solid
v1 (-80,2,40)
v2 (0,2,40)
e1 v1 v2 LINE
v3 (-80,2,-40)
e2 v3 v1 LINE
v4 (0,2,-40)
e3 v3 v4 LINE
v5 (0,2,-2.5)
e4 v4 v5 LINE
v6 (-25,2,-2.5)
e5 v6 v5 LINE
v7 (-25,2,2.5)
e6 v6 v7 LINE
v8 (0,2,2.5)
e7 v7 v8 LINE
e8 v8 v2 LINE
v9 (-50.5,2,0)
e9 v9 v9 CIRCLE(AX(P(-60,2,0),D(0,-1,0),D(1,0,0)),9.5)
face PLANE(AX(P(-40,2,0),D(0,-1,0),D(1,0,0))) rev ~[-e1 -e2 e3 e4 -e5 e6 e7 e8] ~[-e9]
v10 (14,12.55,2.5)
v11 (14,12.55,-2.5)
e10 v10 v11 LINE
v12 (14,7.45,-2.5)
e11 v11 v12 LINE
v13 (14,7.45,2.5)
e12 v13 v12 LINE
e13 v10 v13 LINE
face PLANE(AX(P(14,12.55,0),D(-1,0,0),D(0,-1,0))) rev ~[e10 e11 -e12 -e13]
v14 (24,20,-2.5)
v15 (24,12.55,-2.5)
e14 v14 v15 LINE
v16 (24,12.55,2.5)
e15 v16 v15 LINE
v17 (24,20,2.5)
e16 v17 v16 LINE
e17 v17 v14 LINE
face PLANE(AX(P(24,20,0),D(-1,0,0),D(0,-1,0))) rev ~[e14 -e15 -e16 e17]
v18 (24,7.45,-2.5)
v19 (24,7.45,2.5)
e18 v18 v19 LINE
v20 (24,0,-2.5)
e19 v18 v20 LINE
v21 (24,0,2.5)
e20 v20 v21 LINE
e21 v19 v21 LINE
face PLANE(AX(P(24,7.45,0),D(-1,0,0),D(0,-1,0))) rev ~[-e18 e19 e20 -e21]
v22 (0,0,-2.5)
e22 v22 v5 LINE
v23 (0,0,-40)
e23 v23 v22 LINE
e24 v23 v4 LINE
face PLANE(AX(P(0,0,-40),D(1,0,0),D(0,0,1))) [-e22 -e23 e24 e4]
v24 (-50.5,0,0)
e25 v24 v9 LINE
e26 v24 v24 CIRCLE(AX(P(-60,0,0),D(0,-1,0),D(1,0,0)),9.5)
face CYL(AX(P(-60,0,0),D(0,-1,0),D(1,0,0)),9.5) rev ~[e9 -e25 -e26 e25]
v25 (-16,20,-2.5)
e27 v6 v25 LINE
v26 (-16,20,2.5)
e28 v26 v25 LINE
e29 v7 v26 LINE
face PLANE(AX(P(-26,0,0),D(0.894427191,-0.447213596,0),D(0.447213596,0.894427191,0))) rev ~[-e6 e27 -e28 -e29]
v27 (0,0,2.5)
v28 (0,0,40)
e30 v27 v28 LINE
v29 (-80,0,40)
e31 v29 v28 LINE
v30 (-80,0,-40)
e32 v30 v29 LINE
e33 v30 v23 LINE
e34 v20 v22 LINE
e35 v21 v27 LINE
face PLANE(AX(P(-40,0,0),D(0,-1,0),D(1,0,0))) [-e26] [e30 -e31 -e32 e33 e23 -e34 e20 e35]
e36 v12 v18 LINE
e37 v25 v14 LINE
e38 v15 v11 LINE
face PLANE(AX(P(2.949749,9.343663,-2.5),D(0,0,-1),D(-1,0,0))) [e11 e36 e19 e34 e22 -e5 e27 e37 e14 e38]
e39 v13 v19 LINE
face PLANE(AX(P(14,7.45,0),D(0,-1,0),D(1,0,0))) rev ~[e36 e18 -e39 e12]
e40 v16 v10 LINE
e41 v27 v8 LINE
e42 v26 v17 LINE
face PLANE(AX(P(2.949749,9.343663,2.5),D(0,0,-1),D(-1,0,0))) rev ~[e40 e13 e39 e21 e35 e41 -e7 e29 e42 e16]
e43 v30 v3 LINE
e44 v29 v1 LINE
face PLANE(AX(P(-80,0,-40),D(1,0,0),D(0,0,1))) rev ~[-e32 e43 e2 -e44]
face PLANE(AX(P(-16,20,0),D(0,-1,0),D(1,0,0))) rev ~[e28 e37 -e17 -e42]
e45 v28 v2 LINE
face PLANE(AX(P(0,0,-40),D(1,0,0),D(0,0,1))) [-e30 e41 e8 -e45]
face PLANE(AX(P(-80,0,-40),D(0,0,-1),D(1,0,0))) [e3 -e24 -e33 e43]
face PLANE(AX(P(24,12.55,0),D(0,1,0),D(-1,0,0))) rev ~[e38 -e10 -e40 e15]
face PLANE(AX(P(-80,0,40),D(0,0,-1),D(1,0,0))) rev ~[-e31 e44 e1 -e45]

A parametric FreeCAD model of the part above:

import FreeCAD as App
import Part
import Sketcher
Q = App.Units.Quantity


def add_polygon(sketch, points):
    """Adds a closed chain of lines whose ends are joined by coincident constraints."""
    first, n = sketch.GeometryCount, len(points)
    for a, b in zip(points, points[1:] + points[:1]):
        sketch.addGeometry(Part.LineSegment(App.Vector(*a, 0), App.Vector(*b, 0)), False)
    for i in range(n):
        sketch.addConstraint(Sketcher.Constraint("Coincident", first + i, 2, first + (i + 1) % n, 1))

doc = App.newDocument("Part")
body = doc.addObject("PartDesign::Body", "Body")

sketch1 = body.newObject("Sketcher::SketchObject", "Sketch")
sketch1.AttachmentSupport = (doc.getObject("XZ_Plane"), [""])
sketch1.MapMode = "FlatFace"
add_polygon(sketch1, [(-80, 40), (-80, -40), (0, -40), (0, 40)])
sketch1.addGeometry(Part.Circle(App.Vector(-60, 0, 0), App.Vector(0, 0, 1), 10), False)
sketch1.addConstraint([
    Sketcher.Constraint("Vertical", 0),
    Sketcher.Constraint("Horizontal", 1),
    Sketcher.Constraint("Vertical", 2),
    Sketcher.Constraint("Horizontal", 3),
    Sketcher.Constraint("Symmetric", 1, 2, 2, 2, -1, 1),
    Sketcher.Constraint("PointOnObject", 4, 3, -1),
    Sketcher.Constraint("Equal", 3, 0),
    Sketcher.Constraint("Diameter", 4, Q("19 mm")),
    Sketcher.Constraint("DistanceX", 1, 1, 1, 2, Q("80 mm")),
    Sketcher.Constraint("DistanceX", 4, 3, -1, 1, Q("60 mm")),
])
pad1 = body.newObject("PartDesign::Pad", "Pad")
pad1.Profile = sketch1
pad1.Length = 2
pad1.Reversed = True

sketch2 = body.newObject("Sketcher::SketchObject", "Sketch001")
sketch2.AttachmentSupport = (doc.getObject("XY_Plane"), [""])
sketch2.MapMode = "FlatFace"
add_polygon(sketch2, [(-16, 20), (-26, 0), (24, 0), (24, 7), (14, 7), (14, 13), (24, 13), (24, 20)])
sketch2.addConstraint([
    Sketcher.Constraint("Horizontal", 1),
    Sketcher.Constraint("Vertical", 2),
    Sketcher.Constraint("Horizontal", 3),
    Sketcher.Constraint("Vertical", 4),
    Sketcher.Constraint("Horizontal", 5),
    Sketcher.Constraint("Vertical", 6),
    Sketcher.Constraint("Horizontal", 7),
    Sketcher.Constraint("PointOnObject", 0, 2, -1),
    Sketcher.Constraint("Vertical", 2, 2, 5, 2),
    Sketcher.Constraint("Equal", 2, 6),
    Sketcher.Constraint("DistanceX", 1, 1, 1, 2, Q("50 mm")),
    Sketcher.Constraint("DistanceX", 3, 2, 3, 1, Q("10 mm")),
    Sketcher.Constraint("DistanceX", 7, 2, 7, 1, Q("40 mm")),
    Sketcher.Constraint("DistanceY", 4, 1, 4, 2, Q("5.1 mm")),
    Sketcher.Constraint("DistanceX", 0, 2, -1, 1, Q("26 mm")),
    Sketcher.Constraint("DistanceY", -1, 1, 6, 2, Q("20 mm")),
])
pad2 = body.newObject("PartDesign::Pad", "Pad001")
pad2.Profile = sketch2
pad2.Length = 5
pad2.Midplane = True

doc.recompute()
